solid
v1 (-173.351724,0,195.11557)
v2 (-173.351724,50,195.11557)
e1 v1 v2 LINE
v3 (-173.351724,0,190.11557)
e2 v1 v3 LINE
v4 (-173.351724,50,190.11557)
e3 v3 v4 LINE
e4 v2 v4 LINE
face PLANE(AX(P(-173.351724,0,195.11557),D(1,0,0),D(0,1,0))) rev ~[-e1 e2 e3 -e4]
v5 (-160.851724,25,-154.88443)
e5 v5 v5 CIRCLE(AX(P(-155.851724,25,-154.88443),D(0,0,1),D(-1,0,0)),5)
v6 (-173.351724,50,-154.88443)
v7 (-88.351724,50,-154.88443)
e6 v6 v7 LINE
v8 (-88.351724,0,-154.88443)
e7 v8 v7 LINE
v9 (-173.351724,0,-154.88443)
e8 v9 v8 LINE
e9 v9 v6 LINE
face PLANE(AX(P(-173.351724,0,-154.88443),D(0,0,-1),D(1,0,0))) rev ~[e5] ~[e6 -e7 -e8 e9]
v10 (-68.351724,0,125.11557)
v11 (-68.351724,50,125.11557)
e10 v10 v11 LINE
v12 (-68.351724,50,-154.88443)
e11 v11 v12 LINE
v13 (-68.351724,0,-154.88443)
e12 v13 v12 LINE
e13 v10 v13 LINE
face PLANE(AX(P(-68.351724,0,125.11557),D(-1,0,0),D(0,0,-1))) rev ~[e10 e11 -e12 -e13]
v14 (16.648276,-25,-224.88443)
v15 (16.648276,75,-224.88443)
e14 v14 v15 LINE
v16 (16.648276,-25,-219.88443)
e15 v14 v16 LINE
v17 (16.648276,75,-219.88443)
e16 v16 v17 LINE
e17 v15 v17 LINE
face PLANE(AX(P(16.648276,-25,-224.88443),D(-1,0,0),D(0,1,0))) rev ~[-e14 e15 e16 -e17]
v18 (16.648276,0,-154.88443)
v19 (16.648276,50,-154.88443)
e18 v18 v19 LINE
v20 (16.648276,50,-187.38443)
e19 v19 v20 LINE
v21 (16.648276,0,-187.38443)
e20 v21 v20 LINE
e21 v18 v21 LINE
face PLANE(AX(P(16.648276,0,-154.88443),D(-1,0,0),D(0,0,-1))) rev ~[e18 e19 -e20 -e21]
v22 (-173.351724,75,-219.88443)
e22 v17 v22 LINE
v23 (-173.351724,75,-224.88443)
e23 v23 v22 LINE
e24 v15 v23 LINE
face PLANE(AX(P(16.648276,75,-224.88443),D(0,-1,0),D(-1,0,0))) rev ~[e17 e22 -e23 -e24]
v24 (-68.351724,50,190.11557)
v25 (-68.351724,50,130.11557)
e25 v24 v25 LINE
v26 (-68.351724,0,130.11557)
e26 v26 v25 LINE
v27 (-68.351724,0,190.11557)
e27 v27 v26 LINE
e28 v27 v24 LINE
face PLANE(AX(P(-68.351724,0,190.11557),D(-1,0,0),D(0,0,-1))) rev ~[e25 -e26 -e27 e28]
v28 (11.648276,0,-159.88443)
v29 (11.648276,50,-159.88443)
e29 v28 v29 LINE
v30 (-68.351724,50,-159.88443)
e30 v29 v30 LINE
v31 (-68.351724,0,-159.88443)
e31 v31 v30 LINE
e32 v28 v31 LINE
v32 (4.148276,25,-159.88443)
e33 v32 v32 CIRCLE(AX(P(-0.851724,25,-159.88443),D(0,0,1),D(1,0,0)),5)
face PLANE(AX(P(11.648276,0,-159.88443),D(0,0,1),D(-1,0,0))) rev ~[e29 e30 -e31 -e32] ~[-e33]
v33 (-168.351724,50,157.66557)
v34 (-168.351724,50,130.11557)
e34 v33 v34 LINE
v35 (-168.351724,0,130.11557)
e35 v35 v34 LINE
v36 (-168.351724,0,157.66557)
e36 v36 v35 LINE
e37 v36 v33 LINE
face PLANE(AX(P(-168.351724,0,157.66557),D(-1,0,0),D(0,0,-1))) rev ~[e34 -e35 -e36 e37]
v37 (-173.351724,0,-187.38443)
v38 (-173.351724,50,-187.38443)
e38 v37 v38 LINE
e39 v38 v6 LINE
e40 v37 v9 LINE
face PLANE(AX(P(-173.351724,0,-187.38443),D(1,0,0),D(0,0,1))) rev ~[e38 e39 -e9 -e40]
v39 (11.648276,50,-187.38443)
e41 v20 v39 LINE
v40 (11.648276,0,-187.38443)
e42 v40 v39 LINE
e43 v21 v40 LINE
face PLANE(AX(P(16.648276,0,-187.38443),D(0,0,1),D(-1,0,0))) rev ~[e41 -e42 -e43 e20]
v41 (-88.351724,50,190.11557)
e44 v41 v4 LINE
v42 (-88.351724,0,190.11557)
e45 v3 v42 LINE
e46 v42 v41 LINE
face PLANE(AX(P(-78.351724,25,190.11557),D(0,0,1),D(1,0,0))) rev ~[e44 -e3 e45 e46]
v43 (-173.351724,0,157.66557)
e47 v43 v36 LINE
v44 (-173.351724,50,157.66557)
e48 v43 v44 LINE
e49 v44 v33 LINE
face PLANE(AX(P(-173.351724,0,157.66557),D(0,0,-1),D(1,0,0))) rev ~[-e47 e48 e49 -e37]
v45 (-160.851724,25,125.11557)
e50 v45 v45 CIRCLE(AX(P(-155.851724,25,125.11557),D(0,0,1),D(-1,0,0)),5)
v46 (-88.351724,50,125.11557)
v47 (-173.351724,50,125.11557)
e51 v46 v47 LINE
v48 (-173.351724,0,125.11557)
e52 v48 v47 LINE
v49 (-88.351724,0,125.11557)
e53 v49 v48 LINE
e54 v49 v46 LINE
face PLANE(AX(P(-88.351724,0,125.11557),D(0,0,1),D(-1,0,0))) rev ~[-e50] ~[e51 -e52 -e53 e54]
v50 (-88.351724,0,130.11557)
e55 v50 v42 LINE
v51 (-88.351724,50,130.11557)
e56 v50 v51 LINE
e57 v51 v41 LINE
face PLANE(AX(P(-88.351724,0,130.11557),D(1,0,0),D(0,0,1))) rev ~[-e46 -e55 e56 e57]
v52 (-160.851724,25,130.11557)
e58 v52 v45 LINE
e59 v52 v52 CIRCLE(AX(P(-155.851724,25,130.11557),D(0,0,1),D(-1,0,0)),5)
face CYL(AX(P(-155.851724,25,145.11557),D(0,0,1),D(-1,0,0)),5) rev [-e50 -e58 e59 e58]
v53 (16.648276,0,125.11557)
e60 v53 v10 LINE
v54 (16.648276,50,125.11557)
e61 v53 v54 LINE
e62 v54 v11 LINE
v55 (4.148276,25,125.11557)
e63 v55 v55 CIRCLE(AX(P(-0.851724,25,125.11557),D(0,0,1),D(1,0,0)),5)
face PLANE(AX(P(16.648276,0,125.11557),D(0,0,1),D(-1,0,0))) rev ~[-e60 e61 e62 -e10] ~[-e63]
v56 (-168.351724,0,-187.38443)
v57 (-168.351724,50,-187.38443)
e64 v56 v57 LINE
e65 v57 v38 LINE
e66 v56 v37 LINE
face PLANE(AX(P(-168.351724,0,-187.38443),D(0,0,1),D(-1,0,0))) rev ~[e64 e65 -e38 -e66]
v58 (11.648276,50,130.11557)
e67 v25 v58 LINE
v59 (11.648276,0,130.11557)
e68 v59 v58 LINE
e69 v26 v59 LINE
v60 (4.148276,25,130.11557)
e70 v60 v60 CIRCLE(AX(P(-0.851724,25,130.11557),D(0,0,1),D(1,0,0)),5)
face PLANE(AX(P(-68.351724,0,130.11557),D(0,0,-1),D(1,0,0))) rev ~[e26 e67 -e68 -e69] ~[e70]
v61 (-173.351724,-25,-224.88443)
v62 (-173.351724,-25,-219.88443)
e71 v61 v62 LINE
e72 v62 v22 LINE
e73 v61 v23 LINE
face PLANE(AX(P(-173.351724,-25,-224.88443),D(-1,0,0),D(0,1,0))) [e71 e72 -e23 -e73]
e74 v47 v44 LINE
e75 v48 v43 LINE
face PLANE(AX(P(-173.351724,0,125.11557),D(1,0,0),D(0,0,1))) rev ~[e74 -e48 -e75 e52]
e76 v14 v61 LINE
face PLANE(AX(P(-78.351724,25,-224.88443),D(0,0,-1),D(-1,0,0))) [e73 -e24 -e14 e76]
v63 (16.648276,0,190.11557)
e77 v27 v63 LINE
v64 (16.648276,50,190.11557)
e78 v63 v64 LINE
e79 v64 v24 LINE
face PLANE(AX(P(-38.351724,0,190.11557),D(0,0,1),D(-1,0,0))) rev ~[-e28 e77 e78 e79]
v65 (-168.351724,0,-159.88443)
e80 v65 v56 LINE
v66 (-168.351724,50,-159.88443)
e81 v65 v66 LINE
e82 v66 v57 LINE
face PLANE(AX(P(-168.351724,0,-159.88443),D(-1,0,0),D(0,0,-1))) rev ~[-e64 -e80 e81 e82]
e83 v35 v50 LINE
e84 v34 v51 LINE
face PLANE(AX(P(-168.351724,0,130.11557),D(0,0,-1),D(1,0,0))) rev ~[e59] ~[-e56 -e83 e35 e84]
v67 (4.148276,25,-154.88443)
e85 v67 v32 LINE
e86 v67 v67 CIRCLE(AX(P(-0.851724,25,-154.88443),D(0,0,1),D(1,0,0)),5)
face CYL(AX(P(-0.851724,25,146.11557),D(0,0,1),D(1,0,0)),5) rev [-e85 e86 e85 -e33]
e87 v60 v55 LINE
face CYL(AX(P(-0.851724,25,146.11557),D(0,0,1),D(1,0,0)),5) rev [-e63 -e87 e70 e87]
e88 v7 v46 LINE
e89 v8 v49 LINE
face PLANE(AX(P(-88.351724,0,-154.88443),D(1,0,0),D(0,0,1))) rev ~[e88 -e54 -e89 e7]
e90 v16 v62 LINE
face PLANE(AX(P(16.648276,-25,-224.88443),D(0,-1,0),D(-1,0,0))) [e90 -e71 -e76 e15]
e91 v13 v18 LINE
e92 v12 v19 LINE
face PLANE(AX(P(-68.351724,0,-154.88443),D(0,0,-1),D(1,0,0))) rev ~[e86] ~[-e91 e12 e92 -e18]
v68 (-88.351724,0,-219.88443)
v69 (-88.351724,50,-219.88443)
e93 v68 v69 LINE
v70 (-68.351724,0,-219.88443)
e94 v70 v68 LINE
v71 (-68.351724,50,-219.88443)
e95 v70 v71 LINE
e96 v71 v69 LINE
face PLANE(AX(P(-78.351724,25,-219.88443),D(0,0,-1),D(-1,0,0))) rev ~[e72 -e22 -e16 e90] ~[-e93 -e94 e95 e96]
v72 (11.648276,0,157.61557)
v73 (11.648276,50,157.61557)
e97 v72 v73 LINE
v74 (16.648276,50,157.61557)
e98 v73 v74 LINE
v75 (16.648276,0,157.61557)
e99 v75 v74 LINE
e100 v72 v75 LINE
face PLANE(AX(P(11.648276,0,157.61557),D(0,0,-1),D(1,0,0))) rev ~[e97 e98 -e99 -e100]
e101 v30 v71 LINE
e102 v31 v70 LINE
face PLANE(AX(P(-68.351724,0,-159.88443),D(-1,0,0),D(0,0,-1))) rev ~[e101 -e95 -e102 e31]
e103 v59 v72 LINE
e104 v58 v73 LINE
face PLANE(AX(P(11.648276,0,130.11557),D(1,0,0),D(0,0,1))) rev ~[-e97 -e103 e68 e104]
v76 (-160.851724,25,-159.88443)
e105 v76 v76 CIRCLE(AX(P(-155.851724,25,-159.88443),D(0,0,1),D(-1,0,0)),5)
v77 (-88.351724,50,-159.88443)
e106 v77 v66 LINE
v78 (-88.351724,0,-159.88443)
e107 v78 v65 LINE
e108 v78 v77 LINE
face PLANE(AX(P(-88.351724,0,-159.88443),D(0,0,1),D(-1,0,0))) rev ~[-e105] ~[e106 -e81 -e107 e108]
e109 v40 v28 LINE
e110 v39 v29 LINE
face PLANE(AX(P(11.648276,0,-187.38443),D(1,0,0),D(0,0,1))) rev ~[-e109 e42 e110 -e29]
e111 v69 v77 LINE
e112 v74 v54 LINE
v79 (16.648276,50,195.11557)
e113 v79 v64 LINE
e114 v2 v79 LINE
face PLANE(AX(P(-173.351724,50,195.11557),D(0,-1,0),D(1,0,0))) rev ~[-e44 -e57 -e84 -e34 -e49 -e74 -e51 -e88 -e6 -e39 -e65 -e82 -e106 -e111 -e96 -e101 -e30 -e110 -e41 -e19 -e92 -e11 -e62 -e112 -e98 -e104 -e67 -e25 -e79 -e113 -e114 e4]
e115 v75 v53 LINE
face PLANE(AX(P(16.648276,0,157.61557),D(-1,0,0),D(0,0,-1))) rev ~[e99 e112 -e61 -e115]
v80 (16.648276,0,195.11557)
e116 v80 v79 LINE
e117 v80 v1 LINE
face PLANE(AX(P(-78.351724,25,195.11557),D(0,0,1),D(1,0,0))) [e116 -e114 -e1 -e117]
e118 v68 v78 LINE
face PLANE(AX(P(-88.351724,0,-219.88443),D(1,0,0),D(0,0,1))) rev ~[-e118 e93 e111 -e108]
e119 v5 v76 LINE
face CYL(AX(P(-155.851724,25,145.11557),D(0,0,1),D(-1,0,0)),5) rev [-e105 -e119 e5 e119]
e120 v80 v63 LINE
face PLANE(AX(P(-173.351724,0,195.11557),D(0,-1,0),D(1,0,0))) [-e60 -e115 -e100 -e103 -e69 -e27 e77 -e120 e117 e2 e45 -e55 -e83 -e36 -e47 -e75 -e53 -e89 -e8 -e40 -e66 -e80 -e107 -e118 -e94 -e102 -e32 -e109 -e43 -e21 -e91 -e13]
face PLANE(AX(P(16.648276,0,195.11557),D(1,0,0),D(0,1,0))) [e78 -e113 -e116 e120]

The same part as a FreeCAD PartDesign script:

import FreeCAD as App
import Part
import Sketcher


def add_polygon(sketch, points):
    """Adds a closed chain of lines whose ends are joined by coincident constraints."""
    first, n = sketch.GeometryCount, len(points)
    for a, b in zip(points, points[1:] + points[:1]):
        sketch.addGeometry(Part.LineSegment(App.Vector(*a, 0), App.Vector(*b, 0)), False)
    for i in range(n):
        sketch.addConstraint(Sketcher.Constraint("Coincident", first + i, 2, first + (i + 1) % n, 1))

doc = App.newDocument("Part")
body = doc.addObject("PartDesign::Body", "Body")

sketch1 = body.newObject("Sketcher::SketchObject", "Sketch")
sketch1.AttachmentSupport = (doc.getObject("XZ_Plane"), [""])
sketch1.MapMode = "FlatFace"
add_polygon(sketch1, [(-68.4, -159.9), (-68.4, -219.9), (-38.4, -219.9), (-38.4, -224.9), (-118.4, -224.9), (-118.4, -219.9), (-88.4, -219.9), (-88.4, -159.9), (-168.4, -159.9), (-168.4, -187.4), (-173.4, -187.4), (-173.4, -154.9), (-88.4, -154.9), (-88.4, 125.1), (-173.4, 125.1), (-173.4, 157.7), (-168.4, 157.7), (-168.4, 130.1), (-88.4, 130.1), (-88.4, 190.1), (-118.4, 190.1), (-118.4, 195.1), (-38.4, 195.1), (-38.4, 190.1), (-68.4, 190.1), (-68.4, 130.1), (11.6, 130.1), (11.6, 157.6), (16.6, 157.6), (16.6, 125.1), (-68.4, 125.1), (-68.4, -154.9), (16.6, -154.9), (16.6, -187.4), (11.6, -187.4), (11.6, -159.9)])
sketch1.addConstraint([
    Sketcher.Constraint("Vertical", 0),
    Sketcher.Constraint("Horizontal", 1),
    Sketcher.Constraint("Vertical", 2),
    Sketcher.Constraint("Horizontal", 3),
    Sketcher.Constraint("Vertical", 4),
    Sketcher.Constraint("Horizontal", 5),
    Sketcher.Constraint("Vertical", 6),
    Sketcher.Constraint("Horizontal", 7),
    Sketcher.Constraint("Vertical", 8),
    Sketcher.Constraint("Horizontal", 9),
    Sketcher.Constraint("Vertical", 10),
    Sketcher.Constraint("Horizontal", 11),
    Sketcher.Constraint("Vertical", 12),
    Sketcher.Constraint("Horizontal", 13),
    Sketcher.Constraint("Vertical", 14),
    Sketcher.Constraint("Horizontal", 15),
    Sketcher.Constraint("Vertical", 16),
    Sketcher.Constraint("Horizontal", 17),
    Sketcher.Constraint("Vertical", 18),
    Sketcher.Constraint("Horizontal", 19),
    Sketcher.Constraint("Vertical", 20),
    Sketcher.Constraint("Horizontal", 21),
    Sketcher.Constraint("Vertical", 22),
    Sketcher.Constraint("Horizontal", 23),
    Sketcher.Constraint("Vertical", 24),
    Sketcher.Constraint("Horizontal", 25),
    Sketcher.Constraint("Vertical", 26),
    Sketcher.Constraint("Horizontal", 27),
    Sketcher.Constraint("Vertical", 28),
    Sketcher.Constraint("Horizontal", 29),
    Sketcher.Constraint("Vertical", 30),
    Sketcher.Constraint("Horizontal", 31),
    Sketcher.Constraint("Vertical", 32),
    Sketcher.Constraint("Horizontal", 33),
    Sketcher.Constraint("Vertical", 34),
    Sketcher.Constraint("Horizontal", 35),
    Sketcher.Constraint("Horizontal", 1, 2, 4, 2),
    Sketcher.Constraint("Horizontal", 19, 2, 22, 2),
    Sketcher.Constraint("Horizontal", 17, 2, 24, 2),
    Sketcher.Constraint("Horizontal", 13, 2, 28, 2),
    Sketcher.Constraint("Horizontal", 11, 2, 30, 2),
    Sketcher.Constraint("Horizontal", 9, 2, 32, 2),
    Sketcher.Constraint("Horizontal", 7, 2, 34, 2),
    Sketcher.Constraint("Vertical", 6, 2, 11, 2),
    Sketcher.Constraint("Vertical", 10, 2, 13, 2),
    Sketcher.Constraint("Vertical", 8, 2, 15, 2),
    Sketcher.Constraint("Vertical", 12, 2, 17, 2),
    Sketcher.Constraint("Vertical", 4, 2, 19, 2),
    Sketcher.Constraint("Vertical", 2, 2, 21, 2),
    Sketcher.Constraint("Vertical", 0, 2, 23, 2),
    Sketcher.Constraint("Vertical", 24, 2, 29, 2),
    Sketcher.Constraint("Vertical", 28, 2, 31, 2),
    Sketcher.Constraint("Vertical", 26, 2, 33, 2),
    Sketcher.Constraint("Equal", 1, 5),
    Sketcher.Constraint("Equal", 3, 7),
    Sketcher.Constraint("Equal", 21, 25),
    Sketcher.Constraint("Equal", 15, 27),
    Sketcher.Constraint("Equal", 33, 2),
    Sketcher.Constraint("Equal", 6, 18),
    Sketcher.Constraint("Equal", 4, 20),
    Sketcher.Constraint("Equal", 8, 26),
    Sketcher.Constraint("Equal", 10, 28),
    Sketcher.Constraint("DistanceX", 1, 1, 1, 2, 30.0),
    Sketcher.Constraint("DistanceX", 3, 2, 3, 1, 80.0),
    Sketcher.Constraint("DistanceX", 9, 2, 9, 1, 5.0),
    Sketcher.Constraint("DistanceY", 0, 2, 0, 1, 60.0),
    Sketcher.Constraint("DistanceY", 12, 1, 12, 2, 280.0),
    Sketcher.Constraint("DistanceY", 8, 2, 8, 1, 27.5),
    Sketcher.Constraint("DistanceY", 10, 1, 10, 2, 32.5),
    Sketcher.Constraint("DistanceY", 14, 1, 14, 2, 32.55),
    Sketcher.Constraint("DistanceY", 0, 2, -1, 1, 219.88443),
    Sketcher.Constraint("DistanceX", 0, 2, -1, 1, 68.351724),
])
pad1 = body.newObject("PartDesign::Pad", "Pad")
pad1.Profile = sketch1
pad1.Length = 50
pad1.Reversed = True

sketch2 = body.newObject("Sketcher::SketchObject", "Sketch001")
sketch2.AttachmentSupport = (doc.getObject("XY_Plane"), [""])
sketch2.MapMode = "FlatFace"
sketch2.AttachmentOffset = App.Placement(App.Vector(0, 0, -224.88443), App.Rotation())
add_polygon(sketch2, [(17, 75), (17, -25), (-173, -25), (-173, 75)])
sketch2.addConstraint([
    Sketcher.Constraint("Vertical", 0),
    Sketcher.Constraint("Horizontal", 1),
    Sketcher.Constraint("Vertical", 2),
    Sketcher.Constraint("Horizontal", 3),
    Sketcher.Constraint("DistanceX", 1, 2, 1, 1, 190.0),
    Sketcher.Constraint("DistanceY", 0, 2, 0, 1, 100.0),
    Sketcher.Constraint("DistanceY", 0, 2, -1, 1, 25.0),
    Sketcher.Constraint("DistanceX", -1, 1, 0, 2, 16.648276),
])
pad2 = body.newObject("PartDesign::Pad", "Pad001")
pad2.Profile = sketch2
pad2.Length = 5

sketch3 = body.newObject("Sketcher::SketchObject", "Sketch002")
sketch3.AttachmentSupport = (doc.getObject("XY_Plane"), [""])
sketch3.MapMode = "FlatFace"
sketch3.AttachmentOffset = App.Placement(App.Vector(0, 0, 195.11557), App.Rotation())
add_polygon(sketch3, [(-173, 50), (-173, 0), (17, 0), (17, 50)])
sketch3.addConstraint([
    Sketcher.Constraint("Vertical", 0),
    Sketcher.Constraint("Horizontal", 1),
    Sketcher.Constraint("Vertical", 2),
    Sketcher.Constraint("Horizontal", 3),
    Sketcher.Constraint("PointOnObject", 0, 2, -1),
    Sketcher.Constraint("DistanceX", 1, 1, 1, 2, 190.0),
    Sketcher.Constraint("DistanceY", 0, 2, 0, 1, 50.0),
    Sketcher.Constraint("DistanceX", 0, 2, -1, 1, 173.351724),
])
pad3 = body.newObject("PartDesign::Pad", "Pad002")
pad3.Profile = sketch3
pad3.Length = 5
pad3.Reversed = True

sketch4 = body.newObject("Sketcher::SketchObject", "Sketch003")
sketch4.AttachmentSupport = (doc.getObject("XY_Plane"), [""])
sketch4.MapMode = "FlatFace"
sketch4.AttachmentOffset = App.Placement(App.Vector(0, 0, 125.11557), App.Rotation())
sketch4.addGeometry(Part.Circle(App.Vector(-156, 25, 0), App.Vector(0, 0, 1), 5), False)
sketch4.addConstraint([
    Sketcher.Constraint("Diameter", 0, 10.0),
    Sketcher.Constraint("DistanceY", -1, 1, 0, 3, 25.0),
    Sketcher.Constraint("DistanceX", 0, 3, -1, 1, 155.851724),
])
pocket1 = body.newObject("PartDesign::Pocket", "Pocket")
pocket1.Profile = sketch4
pocket1.Type = "TwoLengths"
pocket1.Length = 291
pocket1.Length2 = 20

sketch5 = body.newObject("Sketcher::SketchObject", "Sketch004")
sketch5.AttachmentSupport = (doc.getObject("XY_Plane"), [""])
sketch5.MapMode = "FlatFace"
sketch5.AttachmentOffset = App.Placement(App.Vector(0, 0, 125.11557), App.Rotation())
sketch5.addGeometry(Part.Circle(App.Vector(-1, 25, 0), App.Vector(0, 0, 1), 5), False)
sketch5.addConstraint([
    Sketcher.Constraint("Diameter", 0, 10.0),
    Sketcher.Constraint("DistanceY", -1, 1, 0, 3, 25.0),
    Sketcher.Constraint("DistanceX", 0, 3, -1, 1, 0.851724),
])
pocket2 = body.newObject("PartDesign::Pocket", "Pocket001")
pocket2.Profile = sketch5
pocket2.Type = "TwoLengths"
pocket2.Length = 291
pocket2.Length2 = 21

doc.recompute()
